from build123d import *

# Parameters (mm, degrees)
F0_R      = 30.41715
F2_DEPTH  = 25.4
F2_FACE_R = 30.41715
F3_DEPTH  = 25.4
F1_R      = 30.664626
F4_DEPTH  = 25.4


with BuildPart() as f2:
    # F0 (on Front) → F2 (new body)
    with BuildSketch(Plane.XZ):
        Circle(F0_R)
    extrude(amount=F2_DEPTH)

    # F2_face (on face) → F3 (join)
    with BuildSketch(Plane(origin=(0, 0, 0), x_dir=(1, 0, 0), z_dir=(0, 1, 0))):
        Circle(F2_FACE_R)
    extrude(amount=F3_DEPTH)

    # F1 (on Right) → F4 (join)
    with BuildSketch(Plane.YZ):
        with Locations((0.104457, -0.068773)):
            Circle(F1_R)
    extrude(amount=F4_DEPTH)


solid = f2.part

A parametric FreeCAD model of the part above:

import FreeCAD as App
import Part
import Sketcher

V = App.Vector
Q = App.Units.Quantity

doc = App.newDocument("Part")
body = doc.addObject("PartDesign::Body", "Body")

# Sketch on XZ plane
sketch1 = doc.addObject("Sketcher::SketchObject", "Sketch")
body.addObject(sketch1)
sketch1.AttachmentSupport = (doc.XZ_Plane, [""])
sketch1.MapMode = "FlatFace"
sketch1.addGeometry(Part.Circle(V(0, 0, 0), V(0, 0, 1), 30), False)
sketch1.addConstraint([
    Sketcher.Constraint("Coincident", 0, 3, -1, 1),
    Sketcher.Constraint("Diameter", 0, Q("60.8343 mm")),
])
pad1 = doc.addObject("PartDesign::Pad", "Pad")
body.addObject(pad1)
pad1.Profile = sketch1
pad1.Length = Q("1 in")

# Sketch on XZ plane
sketch2 = doc.addObject("Sketcher::SketchObject", "Sketch001")
body.addObject(sketch2)
sketch2.AttachmentSupport = (doc.XZ_Plane, [""])
sketch2.MapMode = "FlatFace"
sketch2.addGeometry(Part.Circle(V(0, 0, 0), V(0, 0, 1), 30), False)
sketch2.addConstraint([
    Sketcher.Constraint("Coincident", 0, 3, -1, 1),
    Sketcher.Constraint("Diameter", 0, Q("60.8343 mm")),
])
pad2 = doc.addObject("PartDesign::Pad", "Pad001")
body.addObject(pad2)
pad2.Profile = sketch2
pad2.Length = Q("1 in")
pad2.Reversed = True

# Sketch on YZ plane
sketch3 = doc.addObject("Sketcher::SketchObject", "Sketch002")
body.addObject(sketch3)
sketch3.AttachmentSupport = (doc.YZ_Plane, [""])
sketch3.MapMode = "FlatFace"
sketch3.addGeometry(Part.Circle(V(0, 0, 0), V(0, 0, 1), 31), False)
sketch3.addConstraint([
    Sketcher.Constraint("Diameter", 0, Q("61.329252 mm")),
    Sketcher.Constraint("DistanceX", -1, 1, 0, 3, Q("0.104457 mm")),
    Sketcher.Constraint("DistanceY", 0, 3, -1, 1, Q("0.068773 mm")),
])
pad3 = doc.addObject("PartDesign::Pad", "Pad002")
body.addObject(pad3)
pad3.Profile = sketch3
pad3.Length = Q("1 in")

doc.recompute()
